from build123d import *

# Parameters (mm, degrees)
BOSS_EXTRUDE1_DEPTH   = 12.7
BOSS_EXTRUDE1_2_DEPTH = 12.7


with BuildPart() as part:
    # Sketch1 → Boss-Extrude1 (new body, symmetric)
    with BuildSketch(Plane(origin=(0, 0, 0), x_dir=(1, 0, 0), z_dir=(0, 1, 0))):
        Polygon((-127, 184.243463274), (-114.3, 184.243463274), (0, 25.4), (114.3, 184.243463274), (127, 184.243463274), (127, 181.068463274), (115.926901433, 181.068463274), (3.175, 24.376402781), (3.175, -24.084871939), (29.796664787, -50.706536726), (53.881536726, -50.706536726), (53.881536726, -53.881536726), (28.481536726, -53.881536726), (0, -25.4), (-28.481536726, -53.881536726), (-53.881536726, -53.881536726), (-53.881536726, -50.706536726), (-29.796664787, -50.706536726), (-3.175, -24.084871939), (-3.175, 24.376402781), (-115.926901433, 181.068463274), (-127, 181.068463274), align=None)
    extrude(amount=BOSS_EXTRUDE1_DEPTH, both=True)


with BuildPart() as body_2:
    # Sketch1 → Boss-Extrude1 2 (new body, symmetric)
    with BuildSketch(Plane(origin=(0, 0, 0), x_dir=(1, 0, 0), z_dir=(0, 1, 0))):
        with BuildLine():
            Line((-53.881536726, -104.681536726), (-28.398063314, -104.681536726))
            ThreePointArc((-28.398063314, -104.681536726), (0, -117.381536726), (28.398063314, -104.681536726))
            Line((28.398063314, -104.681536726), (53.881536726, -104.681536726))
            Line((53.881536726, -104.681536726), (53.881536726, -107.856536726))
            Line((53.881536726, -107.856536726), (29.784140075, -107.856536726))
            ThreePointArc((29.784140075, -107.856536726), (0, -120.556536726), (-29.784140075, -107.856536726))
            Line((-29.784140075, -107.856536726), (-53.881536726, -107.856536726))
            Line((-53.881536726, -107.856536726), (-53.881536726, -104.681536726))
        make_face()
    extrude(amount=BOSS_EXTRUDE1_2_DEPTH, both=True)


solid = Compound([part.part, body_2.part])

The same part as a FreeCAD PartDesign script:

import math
import FreeCAD as App
import Part
import Sketcher
from FreeCAD import Vector
Q = App.Units.Quantity

doc = App.newDocument("Part")
body = doc.addObject("PartDesign::Body", "Body")

# Sketch on XZ plane
sketch1 = doc.addObject("Sketcher::SketchObject", "Sketch")
body.addObject(sketch1)
sketch1.AttachmentSupport = (doc.XZ_Plane, [""])
sketch1.MapMode = "FlatFace"
sketch1.addGeometry(Part.LineSegment(Vector(-114.3, -184.2, 0), Vector(-127, -184.2, 0)), False)
sketch1.addGeometry(Part.LineSegment(Vector(-127, -184.2, 0), Vector(-127, -181.1, 0)), False)
sketch1.addGeometry(Part.LineSegment(Vector(-127, -181.1, 0), Vector(-115.9, -181.1, 0)), False)
sketch1.addGeometry(Part.LineSegment(Vector(-115.9, -181.1, 0), Vector(-3.2, -24.4, 0)), False)
sketch1.addGeometry(Part.LineSegment(Vector(-3.2, -24.4, 0), Vector(-3.2, 24.1, 0)), False)
sketch1.addGeometry(Part.LineSegment(Vector(-3.2, 24.1, 0), Vector(-29.8, 50.7, 0)), False)
sketch1.addGeometry(Part.LineSegment(Vector(-29.8, 50.7, 0), Vector(-53.9, 50.7, 0)), False)
sketch1.addGeometry(Part.LineSegment(Vector(-53.9, 50.7, 0), Vector(-53.9, 53.9, 0)), False)
sketch1.addGeometry(Part.LineSegment(Vector(-53.9, 53.9, 0), Vector(-28.5, 53.9, 0)), False)
sketch1.addGeometry(Part.LineSegment(Vector(-28.5, 53.9, 0), Vector(0, 25.4, 0)), False)
sketch1.addGeometry(Part.LineSegment(Vector(0, 25.4, 0), Vector(28.5, 53.9, 0)), False)
sketch1.addGeometry(Part.LineSegment(Vector(28.5, 53.9, 0), Vector(53.9, 53.9, 0)), False)
sketch1.addGeometry(Part.LineSegment(Vector(53.9, 53.9, 0), Vector(53.9, 50.7, 0)), False)
sketch1.addGeometry(Part.LineSegment(Vector(53.9, 50.7, 0), Vector(29.8, 50.7, 0)), False)
sketch1.addGeometry(Part.LineSegment(Vector(29.8, 50.7, 0), Vector(3.2, 24.1, 0)), False)
sketch1.addGeometry(Part.LineSegment(Vector(3.2, 24.1, 0), Vector(3.2, -24.4, 0)), False)
sketch1.addGeometry(Part.LineSegment(Vector(3.2, -24.4, 0), Vector(115.9, -181.1, 0)), False)
sketch1.addGeometry(Part.LineSegment(Vector(115.9, -181.1, 0), Vector(127, -181.1, 0)), False)
sketch1.addGeometry(Part.LineSegment(Vector(127, -181.1, 0), Vector(127, -184.2, 0)), False)
sketch1.addGeometry(Part.LineSegment(Vector(127, -184.2, 0), Vector(114.3, -184.2, 0)), False)
sketch1.addGeometry(Part.LineSegment(Vector(114.3, -184.2, 0), Vector(0, -25.4, 0)), False)
sketch1.addGeometry(Part.LineSegment(Vector(0, -25.4, 0), Vector(-114.3, -184.2, 0)), False)
sketch1.addConstraint(Sketcher.Constraint("Coincident", 0, 2, 1, 1))
sketch1.addConstraint(Sketcher.Constraint("Coincident", 1, 2, 2, 1))
sketch1.addConstraint(Sketcher.Constraint("Coincident", 2, 2, 3, 1))
sketch1.addConstraint(Sketcher.Constraint("Coincident", 3, 2, 4, 1))
sketch1.addConstraint(Sketcher.Constraint("Coincident", 4, 2, 5, 1))
sketch1.addConstraint(Sketcher.Constraint("Coincident", 5, 2, 6, 1))
sketch1.addConstraint(Sketcher.Constraint("Coincident", 6, 2, 7, 1))
sketch1.addConstraint(Sketcher.Constraint("Coincident", 7, 2, 8, 1))
sketch1.addConstraint(Sketcher.Constraint("Coincident", 8, 2, 9, 1))
sketch1.addConstraint(Sketcher.Constraint("Coincident", 9, 2, 10, 1))
sketch1.addConstraint(Sketcher.Constraint("Coincident", 10, 2, 11, 1))
sketch1.addConstraint(Sketcher.Constraint("Coincident", 11, 2, 12, 1))
sketch1.addConstraint(Sketcher.Constraint("Coincident", 12, 2, 13, 1))
sketch1.addConstraint(Sketcher.Constraint("Coincident", 13, 2, 14, 1))
sketch1.addConstraint(Sketcher.Constraint("Coincident", 14, 2, 15, 1))
sketch1.addConstraint(Sketcher.Constraint("Coincident", 15, 2, 16, 1))
sketch1.addConstraint(Sketcher.Constraint("Coincident", 16, 2, 17, 1))
sketch1.addConstraint(Sketcher.Constraint("Coincident", 17, 2, 18, 1))
sketch1.addConstraint(Sketcher.Constraint("Coincident", 18, 2, 19, 1))
sketch1.addConstraint(Sketcher.Constraint("Coincident", 19, 2, 20, 1))
sketch1.addConstraint(Sketcher.Constraint("Coincident", 20, 2, 21, 1))
sketch1.addConstraint(Sketcher.Constraint("Coincident", 21, 2, 0, 1))
sketch1.addConstraint(Sketcher.Constraint("Horizontal", 0))
sketch1.addConstraint(Sketcher.Constraint("Vertical", 1))
sketch1.addConstraint(Sketcher.Constraint("Horizontal", 2))
sketch1.addConstraint(Sketcher.Constraint("Vertical", 4))
sketch1.addConstraint(Sketcher.Constraint("Horizontal", 6))
sketch1.addConstraint(Sketcher.Constraint("Vertical", 7))
sketch1.addConstraint(Sketcher.Constraint("Horizontal", 8))
sketch1.addConstraint(Sketcher.Constraint("Horizontal", 11))
sketch1.addConstraint(Sketcher.Constraint("Vertical", 12))
sketch1.addConstraint(Sketcher.Constraint("Horizontal", 13))
sketch1.addConstraint(Sketcher.Constraint("Vertical", 15))
sketch1.addConstraint(Sketcher.Constraint("Horizontal", 17))
sketch1.addConstraint(Sketcher.Constraint("Vertical", 18))
sketch1.addConstraint(Sketcher.Constraint("Horizontal", 19))
sketch1.addConstraint(Sketcher.Constraint("Symmetric", 9, 2, 20, 2, -1, 1))
sketch1.addConstraint(Sketcher.Constraint("Symmetric", 8, 2, 10, 2, -2))
sketch1.addConstraint(Sketcher.Constraint("Symmetric", 6, 2, 12, 2, -2))
sketch1.addConstraint(Sketcher.Constraint("Symmetric", 4, 2, 14, 2, -2))
sketch1.addConstraint(Sketcher.Constraint("Symmetric", 2, 2, 16, 2, -2))
sketch1.addConstraint(Sketcher.Constraint("Symmetric", 0, 2, 18, 2, -2))
sketch1.addConstraint(Sketcher.Constraint("PointOnObject", 9, 2, -2))
sketch1.addConstraint(Sketcher.Constraint("Parallel", 5, 9))
sketch1.addConstraint(Sketcher.Constraint("Perpendicular", 9, 10))
sketch1.addConstraint(Sketcher.Constraint("Parallel", 10, 14))
sketch1.addConstraint(Sketcher.Constraint("Parallel", 16, 20))
sketch1.addConstraint(Sketcher.Constraint("Parallel", 3, 21))
sketch1.addConstraint(Sketcher.Constraint("Horizontal", 3, 2, 15, 2))
sketch1.addConstraint(Sketcher.Constraint("Equal", 1, 7))
sketch1.addConstraint(Sketcher.Constraint("DistanceX", 8, 1, 8, 2, Q("1 in")))
sketch1.addConstraint(Sketcher.Constraint("DistanceX", 0, 2, 0, 1, Q("0.5 in")))
sketch1.addConstraint(Sketcher.Constraint("DistanceX", 0, 2, -1, 1, Q("5 in")))
sketch1.addConstraint(Sketcher.Constraint("DistanceY", -1, 1, 9, 2, Q("1 in")))
sketch1.addConstraint(Sketcher.Constraint("DistanceY", 1, 1, 1, 2, Q("0.125 in")))
sketch1.addConstraint(Sketcher.Constraint("DistanceY", 0, 2, 5, 2, Q("9.25 in")))
sketch1.addConstraint(Sketcher.Constraint("DistanceX", 4, 2, 14, 2, Q("0.25 in")))
sketch1.addConstraint(Sketcher.Constraint("DistanceX", 2, 1, 2, 2, Q("11.073099 mm")))
sketch1.addConstraint(Sketcher.Constraint("DistanceX", 6, 2, 6, 1, Q("24.084872 mm")))
sketch1.addConstraint(Sketcher.Constraint("DistanceX", 5, 2, 10, 2, Q("58.278202 mm")))
pad1 = doc.addObject("PartDesign::Pad", "Pad")
body.addObject(pad1)
pad1.Profile = sketch1
pad1.Length = Q("1 in")
pad1.Midplane = True
body2 = doc.addObject("PartDesign::Body", "Body001")

# Sketch on XZ plane
sketch2 = doc.addObject("Sketcher::SketchObject", "Sketch001")
body2.addObject(sketch2)
sketch2.AttachmentSupport = (doc.getObject("XZ_Plane001"), [""])
sketch2.MapMode = "FlatFace"
sketch2.addGeometry(Part.LineSegment(Vector(-28.4, 104.7, 0), Vector(-53.9, 104.7, 0)), False)
sketch2.addGeometry(Part.LineSegment(Vector(-53.9, 104.7, 0), Vector(-53.9, 107.9, 0)), False)
sketch2.addGeometry(Part.LineSegment(Vector(-53.9, 107.9, 0), Vector(-29.8, 107.9, 0)), False)
sketch2.addGeometry(Part.ArcOfCircle(Part.Circle(Vector(0, 79.3, 0), Vector(0, 0, 1), 41.3), math.radians(44), math.radians(136)), False)
sketch2.addGeometry(Part.LineSegment(Vector(29.8, 107.9, 0), Vector(53.9, 107.9, 0)), False)
sketch2.addGeometry(Part.LineSegment(Vector(53.9, 107.9, 0), Vector(53.9, 104.7, 0)), False)
sketch2.addGeometry(Part.LineSegment(Vector(53.9, 104.7, 0), Vector(28.4, 104.7, 0)), False)
sketch2.addGeometry(Part.ArcOfCircle(Part.Circle(Vector(0, 79.3, 0), Vector(0, 0, 1), 38.1), math.radians(42), math.radians(138)), False)
sketch2.addConstraint(Sketcher.Constraint("Coincident", 0, 2, 1, 1))
sketch2.addConstraint(Sketcher.Constraint("Coincident", 1, 2, 2, 1))
sketch2.addConstraint(Sketcher.Constraint("Coincident", 2, 2, 3, 2))
sketch2.addConstraint(Sketcher.Constraint("Coincident", 3, 1, 4, 1))
sketch2.addConstraint(Sketcher.Constraint("Coincident", 4, 2, 5, 1))
sketch2.addConstraint(Sketcher.Constraint("Coincident", 5, 2, 6, 1))
sketch2.addConstraint(Sketcher.Constraint("Coincident", 6, 2, 7, 1))
sketch2.addConstraint(Sketcher.Constraint("Coincident", 7, 2, 0, 1))
sketch2.addConstraint(Sketcher.Constraint("Horizontal", 0))
sketch2.addConstraint(Sketcher.Constraint("Vertical", 1))
sketch2.addConstraint(Sketcher.Constraint("Horizontal", 2))
sketch2.addConstraint(Sketcher.Constraint("Horizontal", 4))
sketch2.addConstraint(Sketcher.Constraint("Vertical", 5))
sketch2.addConstraint(Sketcher.Constraint("Horizontal", 6))
sketch2.addConstraint(Sketcher.Constraint("Coincident", 7, 3, 3, 3))
sketch2.addConstraint(Sketcher.Constraint("Symmetric", 2, 2, 3, 1, -2))
sketch2.addConstraint(Sketcher.Constraint("Symmetric", 0, 2, 5, 2, -2))
sketch2.addConstraint(Sketcher.Constraint("Radius", 7, Q("1.5 in")))
sketch2.addConstraint(Sketcher.Constraint("Radius", 3, Q("1.625 in")))
sketch2.addConstraint(Sketcher.Constraint("DistanceY", 7, 3, 0, 2, Q("1 in")))
sketch2.addConstraint(Sketcher.Constraint("DistanceY", 1, 1, 1, 2, Q("0.125 in")))
sketch2.addConstraint(Sketcher.Constraint("DistanceX", 0, 2, 0, 1, Q("25.483473 mm")))
sketch2.addConstraint(Sketcher.Constraint("DistanceY", -1, 1, 3, 3, Q("79.281537 mm")))
pad2 = doc.addObject("PartDesign::Pad", "Pad001")
body2.addObject(pad2)
pad2.Profile = sketch2
pad2.Length = Q("1 in")
pad2.Midplane = True

doc.recompute()
